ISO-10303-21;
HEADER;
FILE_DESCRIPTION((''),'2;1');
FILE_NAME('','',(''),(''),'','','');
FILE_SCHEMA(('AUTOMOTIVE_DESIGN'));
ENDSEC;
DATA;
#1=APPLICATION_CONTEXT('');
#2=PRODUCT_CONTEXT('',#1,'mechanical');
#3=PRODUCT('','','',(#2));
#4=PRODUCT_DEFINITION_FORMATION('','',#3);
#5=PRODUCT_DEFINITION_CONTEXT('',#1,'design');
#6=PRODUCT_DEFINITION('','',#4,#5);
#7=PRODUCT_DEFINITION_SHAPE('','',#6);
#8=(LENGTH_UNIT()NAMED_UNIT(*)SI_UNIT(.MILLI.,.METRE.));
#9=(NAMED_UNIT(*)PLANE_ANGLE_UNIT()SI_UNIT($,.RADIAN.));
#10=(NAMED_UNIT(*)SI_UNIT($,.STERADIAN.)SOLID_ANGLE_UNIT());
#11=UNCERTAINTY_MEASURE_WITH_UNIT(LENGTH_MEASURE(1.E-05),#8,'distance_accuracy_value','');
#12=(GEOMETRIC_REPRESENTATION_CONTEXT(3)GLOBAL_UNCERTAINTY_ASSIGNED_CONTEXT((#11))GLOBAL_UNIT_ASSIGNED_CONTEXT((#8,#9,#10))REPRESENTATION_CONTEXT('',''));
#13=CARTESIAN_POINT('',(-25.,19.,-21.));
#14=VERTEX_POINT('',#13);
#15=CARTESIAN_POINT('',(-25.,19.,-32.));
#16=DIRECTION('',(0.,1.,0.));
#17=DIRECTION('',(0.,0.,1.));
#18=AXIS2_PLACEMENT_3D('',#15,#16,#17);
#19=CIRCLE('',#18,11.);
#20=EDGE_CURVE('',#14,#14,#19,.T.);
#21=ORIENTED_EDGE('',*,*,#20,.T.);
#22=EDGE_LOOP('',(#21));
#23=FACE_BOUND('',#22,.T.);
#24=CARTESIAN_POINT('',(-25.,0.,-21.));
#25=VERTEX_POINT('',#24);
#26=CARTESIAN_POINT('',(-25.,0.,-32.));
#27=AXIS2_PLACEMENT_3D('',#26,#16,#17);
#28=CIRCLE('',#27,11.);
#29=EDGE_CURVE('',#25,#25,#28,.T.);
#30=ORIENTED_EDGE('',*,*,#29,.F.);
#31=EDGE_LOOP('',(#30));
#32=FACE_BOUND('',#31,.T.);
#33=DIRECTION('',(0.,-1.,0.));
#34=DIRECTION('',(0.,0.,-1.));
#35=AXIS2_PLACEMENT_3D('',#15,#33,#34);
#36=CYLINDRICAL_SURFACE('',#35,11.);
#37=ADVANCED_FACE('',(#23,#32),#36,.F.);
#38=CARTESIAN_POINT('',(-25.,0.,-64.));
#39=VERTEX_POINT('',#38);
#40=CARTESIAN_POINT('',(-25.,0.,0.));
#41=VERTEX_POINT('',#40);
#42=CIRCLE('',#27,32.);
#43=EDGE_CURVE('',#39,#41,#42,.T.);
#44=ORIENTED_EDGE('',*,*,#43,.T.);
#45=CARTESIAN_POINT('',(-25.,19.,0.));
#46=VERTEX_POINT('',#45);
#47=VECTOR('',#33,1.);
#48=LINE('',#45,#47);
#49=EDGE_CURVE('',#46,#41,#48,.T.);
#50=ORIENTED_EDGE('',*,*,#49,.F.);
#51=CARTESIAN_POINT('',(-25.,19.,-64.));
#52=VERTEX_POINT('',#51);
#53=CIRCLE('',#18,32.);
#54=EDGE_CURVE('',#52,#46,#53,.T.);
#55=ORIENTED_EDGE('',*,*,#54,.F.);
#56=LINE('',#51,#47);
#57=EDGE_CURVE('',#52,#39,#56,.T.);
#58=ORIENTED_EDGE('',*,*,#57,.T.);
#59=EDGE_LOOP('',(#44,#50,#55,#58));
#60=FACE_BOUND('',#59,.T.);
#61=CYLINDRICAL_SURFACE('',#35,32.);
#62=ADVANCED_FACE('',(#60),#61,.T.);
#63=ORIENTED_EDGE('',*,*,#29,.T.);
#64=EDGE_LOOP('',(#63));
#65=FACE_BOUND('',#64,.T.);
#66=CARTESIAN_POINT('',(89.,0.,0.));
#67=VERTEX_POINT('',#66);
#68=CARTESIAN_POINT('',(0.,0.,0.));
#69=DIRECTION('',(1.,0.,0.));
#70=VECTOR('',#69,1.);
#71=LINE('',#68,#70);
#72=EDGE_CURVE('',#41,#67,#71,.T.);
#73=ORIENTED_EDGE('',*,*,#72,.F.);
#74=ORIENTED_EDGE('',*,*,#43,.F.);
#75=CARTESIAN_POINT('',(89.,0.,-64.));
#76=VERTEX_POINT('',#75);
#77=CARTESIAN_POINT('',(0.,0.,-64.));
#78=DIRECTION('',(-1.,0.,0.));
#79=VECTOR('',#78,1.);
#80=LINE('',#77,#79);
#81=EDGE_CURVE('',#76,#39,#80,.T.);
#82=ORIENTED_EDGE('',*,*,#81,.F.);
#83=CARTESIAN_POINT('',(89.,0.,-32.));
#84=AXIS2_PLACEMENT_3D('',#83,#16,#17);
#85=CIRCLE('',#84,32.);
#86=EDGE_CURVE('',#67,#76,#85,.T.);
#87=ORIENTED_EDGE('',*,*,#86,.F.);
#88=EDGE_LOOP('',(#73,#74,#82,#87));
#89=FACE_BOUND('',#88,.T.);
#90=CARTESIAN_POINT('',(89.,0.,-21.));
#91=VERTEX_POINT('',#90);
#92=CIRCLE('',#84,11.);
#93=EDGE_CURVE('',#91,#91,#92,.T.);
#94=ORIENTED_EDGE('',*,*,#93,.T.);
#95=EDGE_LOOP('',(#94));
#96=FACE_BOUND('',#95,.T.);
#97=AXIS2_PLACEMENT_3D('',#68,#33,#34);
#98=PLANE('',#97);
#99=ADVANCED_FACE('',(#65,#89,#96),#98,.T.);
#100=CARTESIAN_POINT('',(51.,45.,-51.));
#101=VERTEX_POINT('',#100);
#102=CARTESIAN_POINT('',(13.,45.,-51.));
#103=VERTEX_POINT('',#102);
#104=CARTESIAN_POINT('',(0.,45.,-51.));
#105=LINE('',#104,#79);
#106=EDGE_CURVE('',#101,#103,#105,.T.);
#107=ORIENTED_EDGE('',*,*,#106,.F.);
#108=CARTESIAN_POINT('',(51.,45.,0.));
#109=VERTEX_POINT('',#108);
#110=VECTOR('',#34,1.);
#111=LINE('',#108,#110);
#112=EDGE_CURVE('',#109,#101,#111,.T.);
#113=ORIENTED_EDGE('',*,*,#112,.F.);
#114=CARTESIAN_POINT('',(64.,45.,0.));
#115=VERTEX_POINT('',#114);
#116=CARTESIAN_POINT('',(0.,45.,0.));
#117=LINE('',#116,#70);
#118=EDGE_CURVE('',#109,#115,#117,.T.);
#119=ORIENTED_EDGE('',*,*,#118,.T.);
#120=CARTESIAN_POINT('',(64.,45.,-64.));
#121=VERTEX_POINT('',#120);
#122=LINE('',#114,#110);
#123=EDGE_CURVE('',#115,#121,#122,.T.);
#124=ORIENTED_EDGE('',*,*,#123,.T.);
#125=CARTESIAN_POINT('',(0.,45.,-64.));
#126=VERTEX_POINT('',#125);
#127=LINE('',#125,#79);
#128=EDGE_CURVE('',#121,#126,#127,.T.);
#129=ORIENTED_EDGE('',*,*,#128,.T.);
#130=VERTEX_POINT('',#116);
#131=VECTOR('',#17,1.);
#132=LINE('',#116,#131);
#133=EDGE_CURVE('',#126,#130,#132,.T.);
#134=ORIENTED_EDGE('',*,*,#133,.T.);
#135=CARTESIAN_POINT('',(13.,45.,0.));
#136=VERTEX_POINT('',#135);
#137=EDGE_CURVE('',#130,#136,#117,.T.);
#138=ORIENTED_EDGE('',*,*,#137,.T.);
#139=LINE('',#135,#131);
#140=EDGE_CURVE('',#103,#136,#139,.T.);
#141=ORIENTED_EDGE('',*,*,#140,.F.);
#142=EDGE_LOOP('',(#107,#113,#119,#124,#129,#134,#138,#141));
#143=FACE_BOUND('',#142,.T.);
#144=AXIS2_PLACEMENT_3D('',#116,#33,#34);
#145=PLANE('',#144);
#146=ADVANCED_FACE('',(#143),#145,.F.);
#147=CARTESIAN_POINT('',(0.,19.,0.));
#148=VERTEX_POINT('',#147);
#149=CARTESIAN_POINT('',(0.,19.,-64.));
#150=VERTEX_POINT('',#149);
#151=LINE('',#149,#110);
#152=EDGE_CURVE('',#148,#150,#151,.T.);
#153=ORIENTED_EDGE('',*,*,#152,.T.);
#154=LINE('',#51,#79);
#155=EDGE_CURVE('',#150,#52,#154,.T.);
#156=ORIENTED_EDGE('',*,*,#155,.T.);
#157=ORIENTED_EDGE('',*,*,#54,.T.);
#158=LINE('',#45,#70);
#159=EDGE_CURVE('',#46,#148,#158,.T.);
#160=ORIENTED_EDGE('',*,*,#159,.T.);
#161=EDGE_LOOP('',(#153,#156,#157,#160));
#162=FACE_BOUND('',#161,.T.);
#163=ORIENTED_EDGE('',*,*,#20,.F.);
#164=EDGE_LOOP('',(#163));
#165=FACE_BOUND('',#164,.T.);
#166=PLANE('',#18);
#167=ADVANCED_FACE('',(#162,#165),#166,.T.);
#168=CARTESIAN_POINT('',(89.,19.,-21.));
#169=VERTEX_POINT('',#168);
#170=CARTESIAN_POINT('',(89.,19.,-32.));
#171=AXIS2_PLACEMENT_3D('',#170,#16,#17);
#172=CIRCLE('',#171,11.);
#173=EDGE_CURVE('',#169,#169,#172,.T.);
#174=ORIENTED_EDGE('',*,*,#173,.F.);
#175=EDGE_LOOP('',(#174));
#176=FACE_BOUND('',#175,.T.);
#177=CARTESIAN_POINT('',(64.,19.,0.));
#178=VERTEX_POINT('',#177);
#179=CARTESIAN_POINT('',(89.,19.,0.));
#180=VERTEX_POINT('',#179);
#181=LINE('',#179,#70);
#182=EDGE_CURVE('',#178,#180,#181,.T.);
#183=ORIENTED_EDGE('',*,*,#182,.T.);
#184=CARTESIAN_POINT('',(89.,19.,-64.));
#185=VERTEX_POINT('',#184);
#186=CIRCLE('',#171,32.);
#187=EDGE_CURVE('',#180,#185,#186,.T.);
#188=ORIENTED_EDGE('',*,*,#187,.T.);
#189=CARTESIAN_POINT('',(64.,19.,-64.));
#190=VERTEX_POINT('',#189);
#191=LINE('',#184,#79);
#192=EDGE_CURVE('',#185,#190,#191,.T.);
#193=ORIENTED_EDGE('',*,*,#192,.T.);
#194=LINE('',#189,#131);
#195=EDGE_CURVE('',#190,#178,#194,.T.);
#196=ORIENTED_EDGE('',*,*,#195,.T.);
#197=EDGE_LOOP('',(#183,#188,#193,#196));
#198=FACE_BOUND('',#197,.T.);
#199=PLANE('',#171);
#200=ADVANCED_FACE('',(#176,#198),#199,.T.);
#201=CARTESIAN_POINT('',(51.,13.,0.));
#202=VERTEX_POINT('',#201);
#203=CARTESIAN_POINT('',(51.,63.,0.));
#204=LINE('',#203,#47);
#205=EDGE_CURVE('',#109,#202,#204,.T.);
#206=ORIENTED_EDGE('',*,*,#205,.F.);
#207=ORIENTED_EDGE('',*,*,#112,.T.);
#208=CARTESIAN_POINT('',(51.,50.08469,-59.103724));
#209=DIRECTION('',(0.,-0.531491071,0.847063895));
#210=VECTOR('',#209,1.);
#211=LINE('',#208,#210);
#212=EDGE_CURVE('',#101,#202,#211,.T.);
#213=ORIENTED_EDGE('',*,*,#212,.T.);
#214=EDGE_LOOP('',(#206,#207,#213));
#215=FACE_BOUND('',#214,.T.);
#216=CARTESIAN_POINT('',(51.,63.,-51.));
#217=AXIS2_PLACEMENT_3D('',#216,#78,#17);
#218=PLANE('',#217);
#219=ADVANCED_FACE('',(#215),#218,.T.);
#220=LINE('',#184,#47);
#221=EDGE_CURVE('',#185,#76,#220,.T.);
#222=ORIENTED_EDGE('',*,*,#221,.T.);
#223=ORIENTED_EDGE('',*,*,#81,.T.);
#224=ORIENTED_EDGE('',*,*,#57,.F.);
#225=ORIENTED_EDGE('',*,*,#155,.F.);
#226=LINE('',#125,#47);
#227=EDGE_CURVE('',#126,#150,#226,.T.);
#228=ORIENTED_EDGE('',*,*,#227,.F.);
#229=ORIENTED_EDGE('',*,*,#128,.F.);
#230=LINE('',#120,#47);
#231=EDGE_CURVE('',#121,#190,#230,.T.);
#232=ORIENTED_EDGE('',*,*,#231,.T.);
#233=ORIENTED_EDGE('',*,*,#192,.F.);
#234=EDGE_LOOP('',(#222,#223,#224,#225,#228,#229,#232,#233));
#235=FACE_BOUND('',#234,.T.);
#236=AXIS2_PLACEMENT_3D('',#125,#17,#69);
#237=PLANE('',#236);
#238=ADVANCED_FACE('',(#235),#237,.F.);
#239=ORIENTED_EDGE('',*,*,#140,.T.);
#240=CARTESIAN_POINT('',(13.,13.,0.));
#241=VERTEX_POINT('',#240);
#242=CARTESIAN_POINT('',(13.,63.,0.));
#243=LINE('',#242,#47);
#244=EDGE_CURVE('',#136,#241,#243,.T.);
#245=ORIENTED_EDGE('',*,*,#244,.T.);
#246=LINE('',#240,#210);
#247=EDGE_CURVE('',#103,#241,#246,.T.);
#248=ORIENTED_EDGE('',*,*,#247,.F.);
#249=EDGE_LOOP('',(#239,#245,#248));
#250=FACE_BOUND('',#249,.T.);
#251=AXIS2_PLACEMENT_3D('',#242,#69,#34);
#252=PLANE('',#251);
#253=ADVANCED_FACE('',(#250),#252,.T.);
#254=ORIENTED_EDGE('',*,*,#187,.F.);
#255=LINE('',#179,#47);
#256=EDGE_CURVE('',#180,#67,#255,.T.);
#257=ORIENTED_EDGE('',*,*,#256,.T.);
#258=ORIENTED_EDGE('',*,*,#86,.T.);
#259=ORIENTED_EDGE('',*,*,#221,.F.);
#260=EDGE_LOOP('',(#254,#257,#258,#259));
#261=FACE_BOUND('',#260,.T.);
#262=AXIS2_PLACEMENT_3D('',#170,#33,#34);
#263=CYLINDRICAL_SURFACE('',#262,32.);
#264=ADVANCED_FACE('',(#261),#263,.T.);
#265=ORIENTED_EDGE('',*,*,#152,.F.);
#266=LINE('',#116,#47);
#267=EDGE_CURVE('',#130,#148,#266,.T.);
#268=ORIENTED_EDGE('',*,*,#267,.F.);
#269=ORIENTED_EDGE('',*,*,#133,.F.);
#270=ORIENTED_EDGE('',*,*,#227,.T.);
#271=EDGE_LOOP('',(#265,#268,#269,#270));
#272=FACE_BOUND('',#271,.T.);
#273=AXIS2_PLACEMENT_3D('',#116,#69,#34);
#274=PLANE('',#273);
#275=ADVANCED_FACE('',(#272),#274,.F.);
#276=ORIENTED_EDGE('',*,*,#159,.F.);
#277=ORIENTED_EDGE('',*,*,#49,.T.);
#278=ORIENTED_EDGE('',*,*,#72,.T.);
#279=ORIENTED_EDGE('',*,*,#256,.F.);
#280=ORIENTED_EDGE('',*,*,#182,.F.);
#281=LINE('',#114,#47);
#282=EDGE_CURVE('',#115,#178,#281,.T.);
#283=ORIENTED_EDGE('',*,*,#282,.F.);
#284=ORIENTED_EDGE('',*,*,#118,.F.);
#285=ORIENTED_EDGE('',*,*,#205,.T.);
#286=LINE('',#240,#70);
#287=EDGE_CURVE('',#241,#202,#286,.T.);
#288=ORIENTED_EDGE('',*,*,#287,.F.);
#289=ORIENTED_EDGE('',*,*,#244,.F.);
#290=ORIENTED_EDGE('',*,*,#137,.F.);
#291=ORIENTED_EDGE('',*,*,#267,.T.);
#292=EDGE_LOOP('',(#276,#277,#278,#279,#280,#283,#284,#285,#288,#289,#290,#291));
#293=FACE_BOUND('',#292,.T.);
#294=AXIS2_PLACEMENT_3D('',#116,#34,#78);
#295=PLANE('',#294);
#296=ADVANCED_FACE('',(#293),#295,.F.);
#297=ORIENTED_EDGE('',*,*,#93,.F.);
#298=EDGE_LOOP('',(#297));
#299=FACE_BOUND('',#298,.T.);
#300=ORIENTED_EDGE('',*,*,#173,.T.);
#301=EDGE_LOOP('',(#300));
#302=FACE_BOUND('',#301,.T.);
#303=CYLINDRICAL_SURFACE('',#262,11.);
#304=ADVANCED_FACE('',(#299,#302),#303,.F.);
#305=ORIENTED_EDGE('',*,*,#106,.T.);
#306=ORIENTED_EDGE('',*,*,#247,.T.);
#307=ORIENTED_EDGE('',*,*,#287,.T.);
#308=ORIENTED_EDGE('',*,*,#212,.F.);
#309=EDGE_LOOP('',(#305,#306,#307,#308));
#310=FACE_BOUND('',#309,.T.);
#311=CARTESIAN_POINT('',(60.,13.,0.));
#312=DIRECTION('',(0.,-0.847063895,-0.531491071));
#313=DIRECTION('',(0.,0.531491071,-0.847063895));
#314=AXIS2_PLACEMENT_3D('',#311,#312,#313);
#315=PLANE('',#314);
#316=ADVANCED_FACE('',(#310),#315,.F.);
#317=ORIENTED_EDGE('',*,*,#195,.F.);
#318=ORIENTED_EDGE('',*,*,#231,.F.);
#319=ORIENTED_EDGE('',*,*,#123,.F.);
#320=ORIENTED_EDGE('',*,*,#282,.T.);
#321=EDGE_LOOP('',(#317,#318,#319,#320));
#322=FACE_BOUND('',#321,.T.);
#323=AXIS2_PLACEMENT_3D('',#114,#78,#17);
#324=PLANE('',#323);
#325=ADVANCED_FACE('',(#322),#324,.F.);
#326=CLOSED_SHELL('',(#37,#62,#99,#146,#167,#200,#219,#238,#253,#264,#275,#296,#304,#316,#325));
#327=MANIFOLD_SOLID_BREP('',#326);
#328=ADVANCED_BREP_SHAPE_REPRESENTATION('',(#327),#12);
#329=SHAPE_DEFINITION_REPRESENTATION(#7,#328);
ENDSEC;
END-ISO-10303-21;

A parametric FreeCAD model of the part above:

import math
import FreeCAD as App
import Part
import Sketcher

doc = App.newDocument("Part")
body = doc.addObject("PartDesign::Body", "Body")

# Sketch on XZ plane
sketch1 = body.newObject("Sketcher::SketchObject", "Sketch")
sketch1.AttachmentSupport = (doc.getObject("XZ_Plane"), [""])
sketch1.MapMode = "FlatFace"
sketch1.addGeometry([
    Part.LineSegment(App.Vector(0, -64, 0), App.Vector(0, 0, 0)),
    Part.LineSegment(App.Vector(0, 0, 0), App.Vector(64, 0, 0)),
    Part.LineSegment(App.Vector(64, 0, 0), App.Vector(64, -64, 0)),
    Part.LineSegment(App.Vector(64, -64, 0), App.Vector(0, -64, 0)),
], False)
sketch1.addConstraint([
    Sketcher.Constraint("Coincident", 0, 2, 1, 1),
    Sketcher.Constraint("Coincident", 1, 2, 2, 1),
    Sketcher.Constraint("Coincident", 2, 2, 3, 1),
    Sketcher.Constraint("Coincident", 3, 2, 0, 1),
    Sketcher.Constraint("Vertical", 0),
    Sketcher.Constraint("Horizontal", 1),
    Sketcher.Constraint("Vertical", 2),
    Sketcher.Constraint("Horizontal", 3),
    Sketcher.Constraint("Coincident", 0, 2, -1, 1),
    Sketcher.Constraint("Equal", 3, 0),
    Sketcher.Constraint("DistanceX", 1, 1, 1, 2, 64.0),
])
pad1 = body.newObject("PartDesign::Pad", "Pad")
pad1.Profile = sketch1
pad1.Length = 45
pad1.Reversed = True

# Sketch on XZ plane
sketch2 = body.newObject("Sketcher::SketchObject", "Sketch001")
sketch2.AttachmentSupport = (doc.getObject("XZ_Plane"), [""])
sketch2.MapMode = "FlatFace"
sketch2.addGeometry([
    Part.LineSegment(App.Vector(0, 0, 0), App.Vector(0, -64, 0)),  # 0
    Part.LineSegment(App.Vector(0, -64, 0), App.Vector(-25, -64, 0)),  # 1
    Part.ArcOfCircle(Part.Circle(App.Vector(-25, -32, 0), App.Vector(0, 0, 1), 32), math.radians(90), math.radians(270)),  # 2
    Part.LineSegment(App.Vector(-25, 0, 0), App.Vector(0, 0, 0)),  # 3
    Part.Circle(App.Vector(-25, -32, 0), App.Vector(0, 0, 1), 11),  # 4
    Part.LineSegment(App.Vector(64, 0, 0), App.Vector(89, 0, 0)),  # 5
    Part.ArcOfCircle(Part.Circle(App.Vector(89, -32, 0), App.Vector(0, 0, 1), 32), math.radians(-90), math.radians(90)),  # 6
    Part.LineSegment(App.Vector(89, -64, 0), App.Vector(64, -64, 0)),  # 7
    Part.LineSegment(App.Vector(64, -64, 0), App.Vector(64, 0, 0)),  # 8
    Part.Circle(App.Vector(89, -32, 0), App.Vector(0, 0, 1), 11),  # 9
], False)
sketch2.addConstraint([
    Sketcher.Constraint("Coincident", 0, 2, 1, 1),
    Sketcher.Constraint("Tangent", 1, 2, 2, 2),
    Sketcher.Constraint("Tangent", 2, 1, 3, 1),
    Sketcher.Constraint("Coincident", 3, 2, 0, 1),
    Sketcher.Constraint("Tangent", 5, 2, 6, 2),
    Sketcher.Constraint("Tangent", 6, 1, 7, 1),
    Sketcher.Constraint("Coincident", 7, 2, 8, 1),
    Sketcher.Constraint("Coincident", 8, 2, 5, 1),
    Sketcher.Constraint("Vertical", 0),
    Sketcher.Constraint("Horizontal", 1),
    Sketcher.Constraint("Horizontal", 3),
    Sketcher.Constraint("Horizontal", 5),
    Sketcher.Constraint("Horizontal", 7),
    Sketcher.Constraint("Vertical", 8),
    Sketcher.Constraint("Coincident", 3, 2, -1, 1),
    Sketcher.Constraint("Coincident", 4, 3, 2, 3),
    Sketcher.Constraint("Coincident", 9, 3, 6, 3),
    Sketcher.Constraint("Equal", 2, 6),
    Sketcher.Constraint("Equal", 4, 9),
    Sketcher.Constraint("PointOnObject", 5, 2, -1),
    Sketcher.Constraint("Equal", 3, 5),
    Sketcher.Constraint("Diameter", 4, 22.0),
    Sketcher.Constraint("Radius", 2, 32.0),
    Sketcher.Constraint("DistanceX", 1, 2, 1, 1, 25.0),
    Sketcher.Constraint("DistanceX", -1, 1, 6, 3, 89.0),
])
pad2 = body.newObject("PartDesign::Pad", "Pad001")
pad2.Profile = sketch2
pad2.Length = 19
pad2.Reversed = True

# Sketch on XZ plane
sketch3 = body.newObject("Sketcher::SketchObject", "Sketch002")
sketch3.AttachmentSupport = (doc.getObject("XZ_Plane"), [""])
sketch3.MapMode = "FlatFace"
sketch3.addGeometry([
    Part.LineSegment(App.Vector(13, -51, 0), App.Vector(13, 0, 0)),
    Part.LineSegment(App.Vector(13, 0, 0), App.Vector(51, 0, 0)),
    Part.LineSegment(App.Vector(51, 0, 0), App.Vector(51, -51, 0)),
    Part.LineSegment(App.Vector(51, -51, 0), App.Vector(13, -51, 0)),
], False)
sketch3.addConstraint([
    Sketcher.Constraint("Coincident", 0, 2, 1, 1),
    Sketcher.Constraint("Coincident", 1, 2, 2, 1),
    Sketcher.Constraint("Coincident", 2, 2, 3, 1),
    Sketcher.Constraint("Coincident", 3, 2, 0, 1),
    Sketcher.Constraint("Vertical", 0),
    Sketcher.Constraint("Horizontal", 1),
    Sketcher.Constraint("Vertical", 2),
    Sketcher.Constraint("Horizontal", 3),
    Sketcher.Constraint("PointOnObject", 0, 2, -1),
    Sketcher.Constraint("DistanceX", 1, 1, 1, 2, 38.0),
    Sketcher.Constraint("DistanceY", 0, 1, 0, 2, 51.0),
    Sketcher.Constraint("DistanceX", -1, 1, 0, 2, 13.0),
])
pocket1 = body.newObject("PartDesign::Pocket", "Pocket")
pocket1.Profile = sketch3
pocket1.Length = 63

# Sketch on XZ plane
sketch4 = body.newObject("Sketcher::SketchObject", "Sketch003")
sketch4.AttachmentSupport = (doc.getObject("XZ_Plane"), [""])
sketch4.MapMode = "FlatFace"
sketch4.addGeometry([
    Part.LineSegment(App.Vector(13, -51, 0), App.Vector(13, 0, 0)),
    Part.LineSegment(App.Vector(13, 0, 0), App.Vector(51, 0, 0)),
    Part.LineSegment(App.Vector(51, 0, 0), App.Vector(51, -51, 0)),
    Part.LineSegment(App.Vector(51, -51, 0), App.Vector(13, -51, 0)),
], False)
sketch4.addConstraint([
    Sketcher.Constraint("Coincident", 0, 2, 1, 1),
    Sketcher.Constraint("Coincident", 1, 2, 2, 1),
    Sketcher.Constraint("Coincident", 2, 2, 3, 1),
    Sketcher.Constraint("Coincident", 3, 2, 0, 1),
    Sketcher.Constraint("Vertical", 0),
    Sketcher.Constraint("Horizontal", 1),
    Sketcher.Constraint("Vertical", 2),
    Sketcher.Constraint("Horizontal", 3),
    Sketcher.Constraint("PointOnObject", 0, 2, -1),
    Sketcher.Constraint("DistanceX", 1, 1, 1, 2, 38.0),
    Sketcher.Constraint("DistanceY", 0, 1, 0, 2, 51.0),
    Sketcher.Constraint("DistanceX", -1, 1, 0, 2, 13.0),
])
pad3 = body.newObject("PartDesign::Pad", "Pad002")
pad3.Profile = sketch4
pad3.Length = 13
pad3.Reversed = True

# Sketch on YZ plane
sketch5 = body.newObject("Sketcher::SketchObject", "Sketch004")
sketch5.AttachmentSupport = (doc.getObject("YZ_Plane"), [""])
sketch5.MapMode = "FlatFace"
sketch5.AttachmentOffset = App.Placement(App.Vector(0, 0, 13), App.Rotation())
sketch5.addGeometry([
    Part.LineSegment(App.Vector(45, -51, 0), App.Vector(13, 0, 0)),
    Part.LineSegment(App.Vector(13, 0, 0), App.Vector(13, -51, 0)),
    Part.LineSegment(App.Vector(13, -51, 0), App.Vector(45, -51, 0)),
], False)
sketch5.addConstraint([
    Sketcher.Constraint("Coincident", 0, 2, 1, 1),
    Sketcher.Constraint("Coincident", 1, 2, 2, 1),
    Sketcher.Constraint("Coincident", 2, 2, 0, 1),
    Sketcher.Constraint("Vertical", 1),
    Sketcher.Constraint("Horizontal", 2),
    Sketcher.Constraint("PointOnObject", 0, 2, -1),
    Sketcher.Constraint("DistanceX", 2, 1, 2, 2, 32.0),
    Sketcher.Constraint("DistanceY", 1, 2, 1, 1, 51.0),
    Sketcher.Constraint("DistanceX", -1, 1, 0, 2, 13.0),
])
pad4 = body.newObject("PartDesign::Pad", "Pad003")
pad4.Profile = sketch5
pad4.Length = 47

doc.recompute()
